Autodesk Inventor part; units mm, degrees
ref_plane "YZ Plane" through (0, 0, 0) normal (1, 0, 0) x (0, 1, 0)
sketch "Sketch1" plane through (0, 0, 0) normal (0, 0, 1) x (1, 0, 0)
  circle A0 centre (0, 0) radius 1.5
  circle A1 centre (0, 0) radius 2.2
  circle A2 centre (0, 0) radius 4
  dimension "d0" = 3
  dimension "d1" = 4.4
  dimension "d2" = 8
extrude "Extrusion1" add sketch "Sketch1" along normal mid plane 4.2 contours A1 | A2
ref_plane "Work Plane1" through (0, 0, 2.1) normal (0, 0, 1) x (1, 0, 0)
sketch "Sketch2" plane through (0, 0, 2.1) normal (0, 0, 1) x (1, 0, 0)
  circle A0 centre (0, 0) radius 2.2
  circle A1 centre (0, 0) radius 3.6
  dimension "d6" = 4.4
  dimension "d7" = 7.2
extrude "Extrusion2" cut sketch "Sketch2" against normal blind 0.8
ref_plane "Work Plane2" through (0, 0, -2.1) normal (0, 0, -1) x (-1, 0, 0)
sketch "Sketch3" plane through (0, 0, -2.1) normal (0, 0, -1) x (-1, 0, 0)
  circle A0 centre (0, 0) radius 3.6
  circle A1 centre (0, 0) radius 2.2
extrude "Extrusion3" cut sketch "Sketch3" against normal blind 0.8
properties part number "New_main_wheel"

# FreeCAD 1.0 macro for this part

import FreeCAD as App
import Part
import Sketcher
from FreeCAD import Vector

doc = App.newDocument("Part")
params = doc.addObject("Spreadsheet::Sheet", "Params")
for row, (alias, value) in enumerate([
    ("sketch1_diameter", "8 mm"),
    ("sketch1_diameter2", "3 mm"),
    ("pad1_length", "4.2 mm"),
    ("sketch2_diameter", "7.2 mm"),
    ("sketch2_diameter2", "4.4 mm"),
    ("pocket1_length", "0.8 mm"),
    ("sketch3_diameter", "7.2 mm"),
    ("sketch3_diameter2", "4.4 mm"),
    ("pocket2_length", "0.8 mm"),
], start=1):
    params.set(f"A{row}", alias)
    params.set(f"B{row}", "=" + value)
    params.setAlias(f"B{row}", alias)

body = doc.addObject("PartDesign::Body", "Body")

sketch1 = doc.addObject("Sketcher::SketchObject", "Sketch")
body.addObject(sketch1)
sketch1.AttachmentSupport = (doc.XY_Plane, [""])
sketch1.MapMode = "FlatFace"
sketch1.addGeometry([
    Part.Circle(Vector(0, 0, 0), Vector(0, 0, 1), 4),
    Part.Circle(Vector(0, 0, 0), Vector(0, 0, 1), 1.5),
], False)
sketch1.addConstraint([
    Sketcher.Constraint("Coincident", 0, 3, -1, 1),
    Sketcher.Constraint("Coincident", 1, 3, -1, 1),
    Sketcher.Constraint("Diameter", 0, 8.0),
    Sketcher.Constraint("Diameter", 1, 3.0),
])
sketch1.setExpression("Constraints[2]", "Params.sketch1_diameter")
sketch1.setExpression("Constraints[3]", "Params.sketch1_diameter2")
pad1 = doc.addObject("PartDesign::Pad", "Pad")
body.addObject(pad1)
pad1.Profile = sketch1
pad1.setExpression("Length", "Params.pad1_length")
pad1.Midplane = True

sketch2 = doc.addObject("Sketcher::SketchObject", "Sketch001")
body.addObject(sketch2)
sketch2.AttachmentSupport = (doc.XY_Plane, [""])
sketch2.MapMode = "FlatFace"
sketch2.AttachmentOffset = App.Placement(Vector(0, 0, 2.1), App.Rotation())
sketch2.addGeometry([
    Part.Circle(Vector(0, 0, 0), Vector(0, 0, 1), 3.6),
    Part.Circle(Vector(0, 0, 0), Vector(0, 0, 1), 2.2),
], False)
sketch2.addConstraint([
    Sketcher.Constraint("Coincident", 0, 3, -1, 1),
    Sketcher.Constraint("Coincident", 1, 3, -1, 1),
    Sketcher.Constraint("Diameter", 0, 7.2),
    Sketcher.Constraint("Diameter", 1, 4.4),
])
sketch2.setExpression("Constraints[2]", "Params.sketch2_diameter")
sketch2.setExpression("Constraints[3]", "Params.sketch2_diameter2")
pocket1 = doc.addObject("PartDesign::Pocket", "Pocket")
body.addObject(pocket1)
pocket1.Profile = sketch2
pocket1.setExpression("Length", "Params.pocket1_length")

sketch3 = doc.addObject("Sketcher::SketchObject", "Sketch002")
body.addObject(sketch3)
sketch3.AttachmentSupport = (doc.XY_Plane, [""])
sketch3.MapMode = "FlatFace"
sketch3.AttachmentOffset = App.Placement(Vector(0, 0, -2.1), App.Rotation())
sketch3.addGeometry([
    Part.Circle(Vector(0, 0, 0), Vector(0, 0, 1), 3.6),
    Part.Circle(Vector(0, 0, 0), Vector(0, 0, 1), 2.2),
], False)
sketch3.addConstraint([
    Sketcher.Constraint("Coincident", 0, 3, -1, 1),
    Sketcher.Constraint("Coincident", 1, 3, -1, 1),
    Sketcher.Constraint("Diameter", 0, 7.2),
    Sketcher.Constraint("Diameter", 1, 4.4),
])
sketch3.setExpression("Constraints[2]", "Params.sketch3_diameter")
sketch3.setExpression("Constraints[3]", "Params.sketch3_diameter2")
pocket2 = doc.addObject("PartDesign::Pocket", "Pocket001")
body.addObject(pocket2)
pocket2.Profile = sketch3
pocket2.setExpression("Length", "Params.pocket2_length")
pocket2.Reversed = True

doc.recompute()
